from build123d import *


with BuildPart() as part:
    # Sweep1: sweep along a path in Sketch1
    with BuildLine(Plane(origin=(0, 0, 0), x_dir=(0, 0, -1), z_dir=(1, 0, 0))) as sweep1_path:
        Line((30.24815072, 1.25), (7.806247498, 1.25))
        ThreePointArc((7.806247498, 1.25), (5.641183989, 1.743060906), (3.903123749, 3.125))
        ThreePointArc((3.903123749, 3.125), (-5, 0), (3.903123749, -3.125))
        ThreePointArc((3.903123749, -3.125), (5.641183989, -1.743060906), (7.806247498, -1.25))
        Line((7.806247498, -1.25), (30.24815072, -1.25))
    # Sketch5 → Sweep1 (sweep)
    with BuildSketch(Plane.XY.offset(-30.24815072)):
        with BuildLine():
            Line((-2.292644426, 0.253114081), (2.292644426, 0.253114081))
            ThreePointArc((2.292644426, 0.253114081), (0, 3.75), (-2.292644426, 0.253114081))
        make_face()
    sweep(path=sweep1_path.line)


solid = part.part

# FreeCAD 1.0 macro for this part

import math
import FreeCAD as App
import Part
import Sketcher
Q = App.Units.Quantity

doc = App.newDocument("Part")
body = doc.addObject("PartDesign::Body", "Body")

sketch1 = body.newObject("Sketcher::SketchObject", "Sketch")
sketch1.AttachmentSupport = (doc.getObject("XY_Plane"), [""])
sketch1.MapMode = "FlatFace"
sketch1.AttachmentOffset = App.Placement(App.Vector(0, 0, -30.248151), App.Rotation())
sketch1.addGeometry(Part.LineSegment(App.Vector(-2.3, 0.3, 0), App.Vector(2.3, 0.3, 0)), False)
sketch1.addGeometry(Part.ArcOfCircle(Part.Circle(App.Vector(0, 1.2, 0), App.Vector(0, 0, 1), 2.5), math.radians(-24), math.radians(204)), False)
sketch1.addConstraint(Sketcher.Constraint("Coincident", 0, 1, 1, 2))
sketch1.addConstraint(Sketcher.Constraint("Coincident", 1, 1, 0, 2))
sketch1.addConstraint(Sketcher.Constraint("Horizontal", 0))
sketch1.addConstraint(Sketcher.Constraint("PointOnObject", 1, 3, -2))
sketch1.addConstraint(Sketcher.Constraint("Radius", 1, Q("2.5 mm")))
sketch1.addConstraint(Sketcher.Constraint("DistanceY", -1, 1, 1, 3, Q("1.25 mm")))
sketch1.addConstraint(Sketcher.Constraint("DistanceX", 0, 1, 0, 2, Q("4.585289 mm")))

sketch2 = body.newObject("Sketcher::SketchObject", "Sketch001")
sketch2.AttachmentSupport = (doc.getObject("YZ_Plane"), [""])
sketch2.MapMode = "FlatFace"
sketch2.addGeometry(Part.LineSegment(App.Vector(1.2, -30.2, 0), App.Vector(1.2, -7.8, 0)), False)
sketch2.addGeometry(Part.ArcOfCircle(Part.Circle(App.Vector(6.3, -7.8, 0), App.Vector(0, 0, 1), 5), math.radians(129), math.radians(180)), False)
sketch2.addGeometry(Part.ArcOfCircle(Part.Circle(App.Vector(0, 0, 0), App.Vector(0, 0, 1), 5), math.radians(-51), math.radians(231)), False)
sketch2.addGeometry(Part.ArcOfCircle(Part.Circle(App.Vector(-6.3, -7.8, 0), App.Vector(0, 0, 1), 5), math.radians(0), math.radians(51)), False)
sketch2.addGeometry(Part.LineSegment(App.Vector(-1.2, -7.8, 0), App.Vector(-1.2, -30.2, 0)), False)
sketch2.addConstraint(Sketcher.Constraint("Tangent", 0, 2, 1, 2))
sketch2.addConstraint(Sketcher.Constraint("Tangent", 1, 1, 2, 1))
sketch2.addConstraint(Sketcher.Constraint("Tangent", 2, 2, 3, 2))
sketch2.addConstraint(Sketcher.Constraint("Tangent", 3, 1, 4, 1))
sketch2.addConstraint(Sketcher.Constraint("Vertical", 0))
sketch2.addConstraint(Sketcher.Constraint("Vertical", 4))
sketch2.addConstraint(Sketcher.Constraint("Coincident", 2, 3, -1, 1))
sketch2.addConstraint(Sketcher.Constraint("Equal", 1, 2))
sketch2.addConstraint(Sketcher.Constraint("Equal", 2, 3))
sketch2.addConstraint(Sketcher.Constraint("Symmetric", 0, 1, 4, 2, -2))
sketch2.addConstraint(Sketcher.Constraint("Radius", 1, Q("5 mm")))
sketch2.addConstraint(Sketcher.Constraint("DistanceX", 3, 3, 1, 3, Q("12.5 mm")))
sketch2.addConstraint(Sketcher.Constraint("DistanceY", 0, 1, 0, 2, Q("22.441903 mm")))
doc.recompute()

additivepipe = body.newObject("PartDesign::AdditivePipe", "AdditivePipe")
additivepipe.Profile = sketch1
additivepipe.Spine = (sketch2, ["Edge1", "Edge2", "Edge3", "Edge4", "Edge5"])

doc.recompute()
